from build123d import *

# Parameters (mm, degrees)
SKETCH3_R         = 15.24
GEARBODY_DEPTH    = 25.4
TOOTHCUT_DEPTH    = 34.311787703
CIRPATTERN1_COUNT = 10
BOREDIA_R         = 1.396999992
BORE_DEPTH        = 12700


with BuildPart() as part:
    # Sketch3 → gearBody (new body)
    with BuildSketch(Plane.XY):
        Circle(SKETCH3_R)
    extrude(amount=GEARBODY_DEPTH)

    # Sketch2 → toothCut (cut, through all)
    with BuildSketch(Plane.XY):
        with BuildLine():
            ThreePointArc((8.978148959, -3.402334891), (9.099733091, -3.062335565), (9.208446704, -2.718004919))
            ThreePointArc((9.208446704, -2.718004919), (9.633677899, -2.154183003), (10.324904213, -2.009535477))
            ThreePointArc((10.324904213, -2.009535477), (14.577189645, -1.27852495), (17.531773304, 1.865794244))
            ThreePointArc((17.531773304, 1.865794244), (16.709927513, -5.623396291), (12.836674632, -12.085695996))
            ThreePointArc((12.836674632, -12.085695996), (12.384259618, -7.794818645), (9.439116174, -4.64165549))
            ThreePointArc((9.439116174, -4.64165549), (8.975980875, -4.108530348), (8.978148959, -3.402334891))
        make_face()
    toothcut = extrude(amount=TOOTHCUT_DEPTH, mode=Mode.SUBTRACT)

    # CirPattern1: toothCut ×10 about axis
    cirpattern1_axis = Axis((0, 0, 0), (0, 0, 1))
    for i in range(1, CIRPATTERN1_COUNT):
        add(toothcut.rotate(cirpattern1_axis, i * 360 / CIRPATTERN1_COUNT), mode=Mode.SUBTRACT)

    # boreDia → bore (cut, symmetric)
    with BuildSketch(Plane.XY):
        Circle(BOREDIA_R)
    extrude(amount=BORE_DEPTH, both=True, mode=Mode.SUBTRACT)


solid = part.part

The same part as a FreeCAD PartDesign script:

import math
import FreeCAD as App
import Part
import Sketcher
Q = App.Units.Quantity

doc = App.newDocument("Part")
params = doc.addObject("Spreadsheet::Sheet", "Params")
for row, (alias, value) in enumerate([
    ("sketch1_diameter", "1.2 in"),
    ("pad1_length", "1 in"),
    ("sketch2_radius", "0.378 in"),
    ("sketch3_diameter", "0.11 in"),
    ("pocket2_length", "1000 in"),
], start=1):
    params.set(f"A{row}", alias)
    params.set(f"B{row}", "=" + value)
    params.setAlias(f"B{row}", alias)

body = doc.addObject("PartDesign::Body", "Body")

sketch1 = doc.addObject("Sketcher::SketchObject", "Sketch")
body.addObject(sketch1)
sketch1.AttachmentSupport = (doc.XY_Plane, [""])
sketch1.MapMode = "FlatFace"
sketch1.addGeometry(Part.Circle(App.Vector(0, 0, 0), App.Vector(0, 0, 1), 15.24), False)
sketch1.addConstraint([
    Sketcher.Constraint("Coincident", 0, 3, -1, 1),
    Sketcher.Constraint("Diameter", 0, Q("1.2 in")),
])
sketch1.setExpression("Constraints[1]", "Params.sketch1_diameter")
pad1 = doc.addObject("PartDesign::Pad", "Pad")
body.addObject(pad1)
pad1.Profile = sketch1
pad1.setExpression("Length", "Params.pad1_length")

sketch2 = doc.addObject("Sketcher::SketchObject", "Sketch001")
body.addObject(sketch2)
sketch2.AttachmentSupport = (doc.XY_Plane, [""])
sketch2.MapMode = "FlatFace"
sketch2.addGeometry([
    Part.ArcOfCircle(Part.Circle(App.Vector(0, 0, 0), App.Vector(0, 0, 1), 9.6012), math.radians(-20.754568), math.radians(-16.44472)),
    Part.ArcOfCircle(Part.Circle(App.Vector(9.917529, -3.75832, 0), App.Vector(0, 0, 1), 1.00457), math.radians(159.245432), math.radians(241.560092)),
    Part.ArcOfCircle(Part.Circle(App.Vector(6.203539, -10.615781, 0), App.Vector(0, 0, 1), 6.794052), math.radians(-12.494927), math.radians(61.560093)),
    Part.ArcOfCircle(Part.Circle(App.Vector(0, 0, 0), App.Vector(0, 0, 1), 17.630776), math.radians(-43.274045), math.radians(6.074757)),
    Part.ArcOfCircle(Part.Circle(App.Vector(11.359538, 4.705275, 0), App.Vector(0, 0, 1), 6.794052), math.radians(-98.75938), math.radians(-24.704361)),
    Part.ArcOfCircle(Part.Circle(App.Vector(10.171923, -3.002389, 0), App.Vector(0, 0, 1), 1.00457), math.radians(81.24062), math.radians(163.55528)),
], False)
sketch2.addConstraint([
    Sketcher.Constraint("Tangent", 0, 1, 1, 1),
    Sketcher.Constraint("Tangent", 1, 2, 2, 2),
    Sketcher.Constraint("Coincident", 2, 1, 3, 1),
    Sketcher.Constraint("Coincident", 3, 2, 4, 2),
    Sketcher.Constraint("Tangent", 4, 1, 5, 1),
    Sketcher.Constraint("Tangent", 5, 2, 0, 2),
    Sketcher.Constraint("Coincident", 0, 3, -1, 1),
    Sketcher.Constraint("Coincident", 3, 3, -1, 1),
    Sketcher.Constraint("Equal", 2, 4),
    Sketcher.Constraint("Equal", 1, 5),
    Sketcher.Constraint("Radius", 0, Q("0.378 in")),
    Sketcher.Constraint("Radius", 1, 1.00457),
    Sketcher.Constraint("Radius", 2, 6.794052),
    Sketcher.Constraint("Radius", 3, 17.630776),
    Sketcher.Constraint("DistanceX", 2, 3, 4, 3, 5.155999),
    Sketcher.Constraint("DistanceY", 0, 1, 4, 1, 1.392799),
    Sketcher.Constraint("DistanceX", -1, 1, 1, 3, 9.917529),
    Sketcher.Constraint("DistanceX", -1, 1, 2, 3, 6.203539),
])
sketch2.setExpression("Constraints[10]", "Params.sketch2_radius")
pocket1 = doc.addObject("PartDesign::Pocket", "Pocket")
body.addObject(pocket1)
pocket1.Profile = sketch2
pocket1.Type = "ThroughAll"
pocket1.Reversed = True
doc.recompute()

polarpattern = doc.addObject("PartDesign::PolarPattern", "PolarPattern")
body.addObject(polarpattern)
polarpattern.Originals = [pocket1]
polarpattern.Axis = (doc.Z_Axis, [""])
polarpattern.Angle = 360
polarpattern.Occurrences = 10
body.Tip = polarpattern

sketch3 = doc.addObject("Sketcher::SketchObject", "Sketch002")
body.addObject(sketch3)
sketch3.AttachmentSupport = (doc.XY_Plane, [""])
sketch3.MapMode = "FlatFace"
sketch3.addGeometry(Part.Circle(App.Vector(0, 0, 0), App.Vector(0, 0, 1), 1.397), False)
sketch3.addConstraint([
    Sketcher.Constraint("Coincident", 0, 3, -1, 1),
    Sketcher.Constraint("Diameter", 0, Q("0.11 in")),
])
sketch3.setExpression("Constraints[1]", "Params.sketch3_diameter")
pocket2 = doc.addObject("PartDesign::Pocket", "Pocket001")
body.addObject(pocket2)
pocket2.Profile = sketch3
pocket2.setExpression("Length", "Params.pocket2_length")
pocket2.Midplane = True

doc.recompute()
